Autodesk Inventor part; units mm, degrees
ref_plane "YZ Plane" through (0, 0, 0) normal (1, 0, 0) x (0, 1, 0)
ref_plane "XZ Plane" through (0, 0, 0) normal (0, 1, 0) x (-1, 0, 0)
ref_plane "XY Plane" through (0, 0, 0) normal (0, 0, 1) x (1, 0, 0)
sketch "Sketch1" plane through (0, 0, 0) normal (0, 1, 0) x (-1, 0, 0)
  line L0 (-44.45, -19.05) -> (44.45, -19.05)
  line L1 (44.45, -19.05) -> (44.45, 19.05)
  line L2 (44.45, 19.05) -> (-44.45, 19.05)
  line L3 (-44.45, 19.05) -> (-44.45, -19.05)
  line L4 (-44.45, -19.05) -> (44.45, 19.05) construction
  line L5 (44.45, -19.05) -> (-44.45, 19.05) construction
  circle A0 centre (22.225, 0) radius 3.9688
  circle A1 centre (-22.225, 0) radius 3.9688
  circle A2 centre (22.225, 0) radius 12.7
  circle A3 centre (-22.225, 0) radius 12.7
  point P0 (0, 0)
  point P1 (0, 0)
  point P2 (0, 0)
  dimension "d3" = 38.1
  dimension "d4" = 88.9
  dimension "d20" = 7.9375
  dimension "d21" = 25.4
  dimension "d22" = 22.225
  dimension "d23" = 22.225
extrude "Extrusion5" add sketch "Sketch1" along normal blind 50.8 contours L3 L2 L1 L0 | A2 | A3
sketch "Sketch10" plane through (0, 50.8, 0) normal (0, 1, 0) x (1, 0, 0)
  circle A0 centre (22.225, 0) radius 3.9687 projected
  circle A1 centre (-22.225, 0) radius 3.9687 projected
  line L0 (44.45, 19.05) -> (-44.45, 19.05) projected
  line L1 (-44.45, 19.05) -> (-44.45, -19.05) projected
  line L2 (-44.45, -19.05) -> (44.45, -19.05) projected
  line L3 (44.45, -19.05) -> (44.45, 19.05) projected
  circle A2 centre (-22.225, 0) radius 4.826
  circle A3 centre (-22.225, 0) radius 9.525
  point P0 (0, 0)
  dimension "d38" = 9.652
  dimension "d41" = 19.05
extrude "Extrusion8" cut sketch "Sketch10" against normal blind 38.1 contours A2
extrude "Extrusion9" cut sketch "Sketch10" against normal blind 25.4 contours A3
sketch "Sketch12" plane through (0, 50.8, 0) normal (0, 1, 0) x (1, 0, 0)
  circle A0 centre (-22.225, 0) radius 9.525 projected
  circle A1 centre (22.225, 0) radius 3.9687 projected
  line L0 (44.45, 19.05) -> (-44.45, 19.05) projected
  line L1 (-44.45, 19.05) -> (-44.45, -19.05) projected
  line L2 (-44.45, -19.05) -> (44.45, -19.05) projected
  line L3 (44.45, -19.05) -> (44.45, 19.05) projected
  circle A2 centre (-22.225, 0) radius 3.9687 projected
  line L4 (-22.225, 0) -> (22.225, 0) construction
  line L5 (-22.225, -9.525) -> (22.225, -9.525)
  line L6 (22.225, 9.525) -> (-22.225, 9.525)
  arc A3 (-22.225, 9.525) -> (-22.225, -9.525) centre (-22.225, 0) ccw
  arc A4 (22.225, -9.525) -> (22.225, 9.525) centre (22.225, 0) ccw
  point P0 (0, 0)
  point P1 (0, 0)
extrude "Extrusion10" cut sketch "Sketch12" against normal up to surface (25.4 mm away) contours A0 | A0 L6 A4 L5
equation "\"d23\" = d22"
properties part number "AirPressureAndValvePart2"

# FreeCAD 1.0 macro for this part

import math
import FreeCAD as App
import Part
import Sketcher
from FreeCAD import Vector
Q = App.Units.Quantity


def add_polygon(sketch, points):
    """Adds a closed chain of lines whose ends are joined by coincident constraints."""
    first, n = sketch.GeometryCount, len(points)
    for a, b in zip(points, points[1:] + points[:1]):
        sketch.addGeometry(Part.LineSegment(App.Vector(*a, 0), App.Vector(*b, 0)), False)
    for i in range(n):
        sketch.addConstraint(Sketcher.Constraint("Coincident", first + i, 2, first + (i + 1) % n, 1))

doc = App.newDocument("Part")
body = doc.addObject("PartDesign::Body", "Body")

# Sketch on XZ plane
sketch1 = body.newObject("Sketcher::SketchObject", "Sketch")
sketch1.AttachmentSupport = (doc.getObject("XZ_Plane"), [""])
sketch1.MapMode = "FlatFace"
add_polygon(sketch1, [(44.5, 19.1), (44.5, -19.1), (-44.5, -19.1), (-44.5, 19.1)])  # lines 0-3
sketch1.addGeometry(Part.Circle(Vector(22.2, 0, 0), Vector(0, 0, 1), 4), False)  # 4
sketch1.addGeometry(Part.Circle(Vector(-22.2, 0, 0), Vector(0, 0, 1), 4), False)  # 5
sketch1.addConstraint(Sketcher.Constraint("Vertical", 0))
sketch1.addConstraint(Sketcher.Constraint("Horizontal", 1))
sketch1.addConstraint(Sketcher.Constraint("Vertical", 2))
sketch1.addConstraint(Sketcher.Constraint("Horizontal", 3))
sketch1.addConstraint(Sketcher.Constraint("Equal", 4, 5))
sketch1.addConstraint(Sketcher.Constraint("Symmetric", 4, 3, 5, 3, -1, 1))
sketch1.addConstraint(Sketcher.Constraint("Symmetric", 0, 2, 2, 2, -1, 1))
sketch1.addConstraint(Sketcher.Constraint("PointOnObject", 4, 3, -1))
sketch1.addConstraint(Sketcher.Constraint("Diameter", 4, Q("0.3125 in")))
sketch1.addConstraint(Sketcher.Constraint("DistanceX", 1, 2, 1, 1, Q("3.5 in")))
sketch1.addConstraint(Sketcher.Constraint("DistanceY", 0, 2, 0, 1, Q("1.5 in")))
sketch1.addConstraint(Sketcher.Constraint("DistanceX", -1, 1, 4, 3, Q("0.875 in")))
pad1 = body.newObject("PartDesign::Pad", "Pad")
pad1.Profile = sketch1
pad1.Length = Q("2 in")
pad1.Reversed = True

# Sketch on XZ plane
sketch2 = body.newObject("Sketcher::SketchObject", "Sketch001")
sketch2.AttachmentSupport = (doc.getObject("XZ_Plane"), [""])
sketch2.MapMode = "FlatFace"
sketch2.AttachmentOffset = App.Placement(Vector(0, 0, -2 * 25.4), App.Rotation())
sketch2.addGeometry(Part.Circle(Vector(-22.2, 0, 0), Vector(0, 0, 1), 4.8), False)
sketch2.addGeometry(Part.Circle(Vector(-22.2, 0, 0), Vector(0, 0, 1), 4), False)
sketch2.addConstraint(Sketcher.Constraint("Coincident", 1, 3, 0, 3))
sketch2.addConstraint(Sketcher.Constraint("PointOnObject", 0, 3, -1))
sketch2.addConstraint(Sketcher.Constraint("Diameter", 0, Q("0.38 in")))
sketch2.addConstraint(Sketcher.Constraint("Diameter", 1, Q("0.3125 in")))
sketch2.addConstraint(Sketcher.Constraint("DistanceX", 0, 3, -1, 1, Q("0.875 in")))
pocket1 = body.newObject("PartDesign::Pocket", "Pocket")
pocket1.Profile = sketch2
pocket1.Length = Q("1.5 in")
pocket1.Reversed = True

# Sketch on XZ plane
sketch3 = body.newObject("Sketcher::SketchObject", "Sketch002")
sketch3.AttachmentSupport = (doc.getObject("XZ_Plane"), [""])
sketch3.MapMode = "FlatFace"
sketch3.AttachmentOffset = App.Placement(Vector(0, 0, -2 * 25.4), App.Rotation())
sketch3.addGeometry(Part.Circle(Vector(-22.2, 0, 0), Vector(0, 0, 1), 9.5), False)
sketch3.addGeometry(Part.Circle(Vector(-22.2, 0, 0), Vector(0, 0, 1), 4.8), False)
sketch3.addConstraint(Sketcher.Constraint("Coincident", 1, 3, 0, 3))
sketch3.addConstraint(Sketcher.Constraint("PointOnObject", 0, 3, -1))
sketch3.addConstraint(Sketcher.Constraint("Diameter", 0, Q("0.75 in")))
sketch3.addConstraint(Sketcher.Constraint("Diameter", 1, Q("0.38 in")))
sketch3.addConstraint(Sketcher.Constraint("DistanceX", 0, 3, -1, 1, Q("0.875 in")))
pocket2 = body.newObject("PartDesign::Pocket", "Pocket001")
pocket2.Profile = sketch3
pocket2.Length = Q("1 in")
pocket2.Reversed = True

# Sketch on XZ plane
sketch4 = body.newObject("Sketcher::SketchObject", "Sketch003")
sketch4.AttachmentSupport = (doc.getObject("XZ_Plane"), [""])
sketch4.MapMode = "FlatFace"
sketch4.AttachmentOffset = App.Placement(Vector(0, 0, -2 * 25.4), App.Rotation())
sketch4.addGeometry(Part.ArcOfCircle(Part.Circle(Vector(-22.2, 0, 0), Vector(0, 0, 1), 9.5), math.radians(90), math.radians(270)), False)
sketch4.addGeometry(Part.LineSegment(Vector(-22.2, 9.5, 0), Vector(22.2, 9.5, 0)), False)
sketch4.addGeometry(Part.ArcOfCircle(Part.Circle(Vector(22.2, 0, 0), Vector(0, 0, 1), 9.5), math.radians(-90), math.radians(90)), False)
sketch4.addGeometry(Part.LineSegment(Vector(22.2, -9.5, 0), Vector(-22.2, -9.5, 0)), False)
sketch4.addGeometry(Part.Circle(Vector(-22.2, 0, 0), Vector(0, 0, 1), 4), False)
sketch4.addGeometry(Part.Circle(Vector(22.2, 0, 0), Vector(0, 0, 1), 4), False)
sketch4.addConstraint(Sketcher.Constraint("Tangent", 0, 1, 1, 1))
sketch4.addConstraint(Sketcher.Constraint("Tangent", 1, 2, 2, 2))
sketch4.addConstraint(Sketcher.Constraint("Tangent", 2, 1, 3, 1))
sketch4.addConstraint(Sketcher.Constraint("Tangent", 3, 2, 0, 2))
sketch4.addConstraint(Sketcher.Constraint("Horizontal", 1))
sketch4.addConstraint(Sketcher.Constraint("Horizontal", 3))
sketch4.addConstraint(Sketcher.Constraint("Coincident", 4, 3, 0, 3))
sketch4.addConstraint(Sketcher.Constraint("Coincident", 5, 3, 2, 3))
sketch4.addConstraint(Sketcher.Constraint("Equal", 4, 5))
sketch4.addConstraint(Sketcher.Constraint("Symmetric", 0, 3, 2, 3, -1, 1))
sketch4.addConstraint(Sketcher.Constraint("Diameter", 4, Q("0.3125 in")))
sketch4.addConstraint(Sketcher.Constraint("Radius", 0, Q("0.375 in")))
sketch4.addConstraint(Sketcher.Constraint("DistanceX", 1, 1, 1, 2, Q("1.75 in")))
pocket3 = body.newObject("PartDesign::Pocket", "Pocket002")
pocket3.Profile = sketch4
pocket3.Length = Q("1 in")
pocket3.Reversed = True

doc.recompute()
